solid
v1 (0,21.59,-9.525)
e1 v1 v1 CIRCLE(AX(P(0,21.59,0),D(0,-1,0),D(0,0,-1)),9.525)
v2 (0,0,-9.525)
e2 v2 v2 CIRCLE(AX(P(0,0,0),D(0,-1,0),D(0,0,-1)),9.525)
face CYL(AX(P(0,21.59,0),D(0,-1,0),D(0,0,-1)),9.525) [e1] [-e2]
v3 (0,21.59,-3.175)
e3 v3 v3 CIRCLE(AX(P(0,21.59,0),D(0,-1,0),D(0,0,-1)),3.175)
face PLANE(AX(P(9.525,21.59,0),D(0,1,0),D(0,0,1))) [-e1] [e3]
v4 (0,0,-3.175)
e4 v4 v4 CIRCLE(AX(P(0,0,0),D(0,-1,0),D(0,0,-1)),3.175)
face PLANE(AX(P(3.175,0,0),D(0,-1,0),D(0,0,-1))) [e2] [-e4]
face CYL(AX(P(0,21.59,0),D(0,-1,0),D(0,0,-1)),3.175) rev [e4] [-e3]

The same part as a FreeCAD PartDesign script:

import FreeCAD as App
import Part
import Sketcher

V = App.Vector
Q = App.Units.Quantity


def add_polygon(sketch, points):
    """Adds a closed chain of lines whose ends are joined by coincident constraints."""
    first, n = sketch.GeometryCount, len(points)
    for a, b in zip(points, points[1:] + points[:1]):
        sketch.addGeometry(Part.LineSegment(App.Vector(*a, 0), App.Vector(*b, 0)), False)
    for i in range(n):
        sketch.addConstraint(Sketcher.Constraint("Coincident", first + i, 2, first + (i + 1) % n, 1))

doc = App.newDocument("Part")
body = doc.addObject("PartDesign::Body", "Body")

sketch1 = body.newObject("Sketcher::SketchObject", "Sketch")
sketch1.AttachmentSupport = (doc.getObject("XY_Plane"), [""])
sketch1.MapMode = "FlatFace"
add_polygon(sketch1, [(3.175, 21.59), (3.175, 0), (9.525, 0), (9.525, 21.59)])
sketch1.addConstraint([
    Sketcher.Constraint("Vertical", 0),
    Sketcher.Constraint("Horizontal", 1),
    Sketcher.Constraint("Vertical", 2),
    Sketcher.Constraint("Horizontal", 3),
    Sketcher.Constraint("PointOnObject", 0, 2, -1),
    Sketcher.Constraint("DistanceX", 1, 1, 1, 2, Q("0.25 in")),
    Sketcher.Constraint("DistanceY", 0, 2, 0, 1, Q("0.85 in")),
    Sketcher.Constraint("DistanceX", -1, 1, 0, 2, Q("0.125 in")),
])
revolution = body.newObject("PartDesign::Revolution", "Revolution")
revolution.Profile = sketch1
revolution.ReferenceAxis = (sketch1, ["V_Axis"])
revolution.Angle = 360

doc.recompute()
